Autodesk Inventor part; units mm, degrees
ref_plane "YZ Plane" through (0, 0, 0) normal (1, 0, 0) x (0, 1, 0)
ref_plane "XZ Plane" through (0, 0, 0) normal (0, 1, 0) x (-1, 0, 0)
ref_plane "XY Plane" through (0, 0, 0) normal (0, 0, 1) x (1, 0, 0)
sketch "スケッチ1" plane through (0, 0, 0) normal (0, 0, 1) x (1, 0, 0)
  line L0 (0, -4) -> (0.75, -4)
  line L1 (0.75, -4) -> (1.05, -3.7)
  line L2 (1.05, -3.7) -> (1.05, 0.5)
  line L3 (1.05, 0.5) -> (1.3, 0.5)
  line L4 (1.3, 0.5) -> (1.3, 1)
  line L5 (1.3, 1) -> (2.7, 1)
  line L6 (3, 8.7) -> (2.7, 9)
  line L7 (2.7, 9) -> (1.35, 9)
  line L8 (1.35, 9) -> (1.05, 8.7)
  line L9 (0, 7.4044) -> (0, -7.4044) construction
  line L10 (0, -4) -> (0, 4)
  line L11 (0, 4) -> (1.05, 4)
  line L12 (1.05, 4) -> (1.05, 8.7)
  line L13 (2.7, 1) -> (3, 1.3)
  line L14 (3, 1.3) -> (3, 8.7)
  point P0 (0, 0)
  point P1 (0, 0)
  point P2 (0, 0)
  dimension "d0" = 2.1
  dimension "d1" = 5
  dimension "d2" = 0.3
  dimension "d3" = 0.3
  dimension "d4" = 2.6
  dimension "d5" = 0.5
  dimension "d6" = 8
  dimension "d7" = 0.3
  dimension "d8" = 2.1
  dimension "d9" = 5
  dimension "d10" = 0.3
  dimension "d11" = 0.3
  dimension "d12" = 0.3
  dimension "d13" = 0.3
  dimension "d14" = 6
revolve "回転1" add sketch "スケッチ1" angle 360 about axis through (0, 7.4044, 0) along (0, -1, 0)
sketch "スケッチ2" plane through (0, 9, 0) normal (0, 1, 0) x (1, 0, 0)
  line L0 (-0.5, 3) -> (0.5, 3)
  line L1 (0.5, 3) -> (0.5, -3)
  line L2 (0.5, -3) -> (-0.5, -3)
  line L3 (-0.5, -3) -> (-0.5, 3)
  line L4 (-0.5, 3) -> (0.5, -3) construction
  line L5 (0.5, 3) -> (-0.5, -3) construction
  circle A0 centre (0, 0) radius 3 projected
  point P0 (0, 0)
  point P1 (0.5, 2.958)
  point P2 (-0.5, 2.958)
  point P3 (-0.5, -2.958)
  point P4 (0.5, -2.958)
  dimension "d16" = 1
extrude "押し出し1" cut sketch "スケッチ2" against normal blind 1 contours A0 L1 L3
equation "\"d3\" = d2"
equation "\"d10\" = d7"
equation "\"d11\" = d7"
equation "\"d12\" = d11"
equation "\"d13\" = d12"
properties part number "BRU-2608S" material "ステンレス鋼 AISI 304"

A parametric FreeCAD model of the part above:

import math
import FreeCAD as App
import Part
import Sketcher


def add_polygon(sketch, points):
    """Adds a closed chain of lines whose ends are joined by coincident constraints."""
    first, n = sketch.GeometryCount, len(points)
    for a, b in zip(points, points[1:] + points[:1]):
        sketch.addGeometry(Part.LineSegment(App.Vector(*a, 0), App.Vector(*b, 0)), False)
    for i in range(n):
        sketch.addConstraint(Sketcher.Constraint("Coincident", first + i, 2, first + (i + 1) % n, 1))

doc = App.newDocument("Part")
body = doc.addObject("PartDesign::Body", "Body")

# Sketch on XY plane
sketch1 = doc.addObject("Sketcher::SketchObject", "Sketch")
body.addObject(sketch1)
sketch1.AttachmentSupport = (doc.XY_Plane, [""])
sketch1.MapMode = "FlatFace"
add_polygon(sketch1, [(0, 4), (0, -4), (0.75, -4), (1.05, -3.7), (1.05, 0.5), (1.3, 0.5), (1.3, 1), (2.7, 1), (3, 1.3), (3, 8.7), (2.7, 9), (1.35, 9), (1.05, 8.7), (1.05, 4)])  # lines 0-13
sketch1.addConstraint(Sketcher.Constraint("Vertical", 0))
sketch1.addConstraint(Sketcher.Constraint("Horizontal", 1))
sketch1.addConstraint(Sketcher.Constraint("Vertical", 3))
sketch1.addConstraint(Sketcher.Constraint("Horizontal", 4))
sketch1.addConstraint(Sketcher.Constraint("Vertical", 5))
sketch1.addConstraint(Sketcher.Constraint("Horizontal", 6))
sketch1.addConstraint(Sketcher.Constraint("Vertical", 8))
sketch1.addConstraint(Sketcher.Constraint("Horizontal", 10))
sketch1.addConstraint(Sketcher.Constraint("Vertical", 12))
sketch1.addConstraint(Sketcher.Constraint("Horizontal", 13))
sketch1.addConstraint(Sketcher.Constraint("Symmetric", 0, 2, 13, 2, -1, 1))
sketch1.addConstraint(Sketcher.Constraint("Parallel", 2, 7))
sketch1.addConstraint(Sketcher.Constraint("Perpendicular", 7, 9))
sketch1.addConstraint(Sketcher.Constraint("Perpendicular", 9, 11))
sketch1.addConstraint(Sketcher.Constraint("Horizontal", 8, 2, 11, 2))
sketch1.addConstraint(Sketcher.Constraint("Vertical", 6, 2, 9, 2))
sketch1.addConstraint(Sketcher.Constraint("Vertical", 3, 2, 11, 2))
sketch1.addConstraint(Sketcher.Constraint("Equal", 2, 7))
sketch1.addConstraint(Sketcher.Constraint("Equal", 7, 9))
sketch1.addConstraint(Sketcher.Constraint("DistanceY", 0, 2, 0, 1, 8.0))
sketch1.addConstraint(Sketcher.Constraint("DistanceY", 5, 1, 5, 2, 0.5))
sketch1.addConstraint(Sketcher.Constraint("DistanceY", 1, 2, 5, 2, 5.0))
sketch1.addConstraint(Sketcher.Constraint("DistanceY", 6, 2, 9, 2, 8.0))
sketch1.addConstraint(Sketcher.Constraint("DistanceX", 1, 2, 2, 2, 0.3))
sketch1.addConstraint(Sketcher.Constraint("DistanceX", 6, 1, 6, 2, 1.4))
sketch1.addConstraint(Sketcher.Constraint("DistanceX", -1, 1, 7, 2, 3.0))
sketch1.addConstraint(Sketcher.Constraint("DistanceX", 1, 1, 1, 2, 0.75))
revolution = doc.addObject("PartDesign::Revolution", "Revolution")
body.addObject(revolution)
revolution.Profile = sketch1
revolution.ReferenceAxis = (sketch1, ["V_Axis"])
revolution.Angle = 360

# Sketch on XZ plane
sketch2 = doc.addObject("Sketcher::SketchObject", "Sketch001")
body.addObject(sketch2)
sketch2.AttachmentSupport = (doc.XZ_Plane, [""])
sketch2.MapMode = "FlatFace"
sketch2.AttachmentOffset = App.Placement(App.Vector(0, 0, -9), App.Rotation())
sketch2.addGeometry(Part.ArcOfCircle(Part.Circle(App.Vector(0, 0, 0), App.Vector(0, 0, 1), 3), math.radians(-99.59), math.radians(-80.41)), False)
sketch2.addGeometry(Part.LineSegment(App.Vector(-0.5, -3, 0), App.Vector(-0.5, 3, 0)), False)
sketch2.addGeometry(Part.ArcOfCircle(Part.Circle(App.Vector(0, 0, 0), App.Vector(0, 0, 1), 3), math.radians(80.41), math.radians(99.59)), False)
sketch2.addGeometry(Part.LineSegment(App.Vector(0.5, 3, 0), App.Vector(0.5, -3, 0)), False)
sketch2.addConstraint(Sketcher.Constraint("Coincident", 0, 1, 1, 1))
sketch2.addConstraint(Sketcher.Constraint("Coincident", 1, 2, 2, 2))
sketch2.addConstraint(Sketcher.Constraint("Coincident", 2, 1, 3, 1))
sketch2.addConstraint(Sketcher.Constraint("Coincident", 3, 2, 0, 2))
sketch2.addConstraint(Sketcher.Constraint("Vertical", 1))
sketch2.addConstraint(Sketcher.Constraint("Vertical", 3))
sketch2.addConstraint(Sketcher.Constraint("Coincident", 0, 3, -1, 1))
sketch2.addConstraint(Sketcher.Constraint("Coincident", 2, 3, -1, 1))
sketch2.addConstraint(Sketcher.Constraint("Equal", 0, 2))
sketch2.addConstraint(Sketcher.Constraint("Horizontal", 1, 2, 2, 1))
sketch2.addConstraint(Sketcher.Constraint("Radius", 0, 3.0))
sketch2.addConstraint(Sketcher.Constraint("DistanceX", 1, 2, 2, 1, 1.0))
pocket1 = doc.addObject("PartDesign::Pocket", "Pocket")
body.addObject(pocket1)
pocket1.Profile = sketch2
pocket1.Length = 1
pocket1.Reversed = True

doc.recompute()
